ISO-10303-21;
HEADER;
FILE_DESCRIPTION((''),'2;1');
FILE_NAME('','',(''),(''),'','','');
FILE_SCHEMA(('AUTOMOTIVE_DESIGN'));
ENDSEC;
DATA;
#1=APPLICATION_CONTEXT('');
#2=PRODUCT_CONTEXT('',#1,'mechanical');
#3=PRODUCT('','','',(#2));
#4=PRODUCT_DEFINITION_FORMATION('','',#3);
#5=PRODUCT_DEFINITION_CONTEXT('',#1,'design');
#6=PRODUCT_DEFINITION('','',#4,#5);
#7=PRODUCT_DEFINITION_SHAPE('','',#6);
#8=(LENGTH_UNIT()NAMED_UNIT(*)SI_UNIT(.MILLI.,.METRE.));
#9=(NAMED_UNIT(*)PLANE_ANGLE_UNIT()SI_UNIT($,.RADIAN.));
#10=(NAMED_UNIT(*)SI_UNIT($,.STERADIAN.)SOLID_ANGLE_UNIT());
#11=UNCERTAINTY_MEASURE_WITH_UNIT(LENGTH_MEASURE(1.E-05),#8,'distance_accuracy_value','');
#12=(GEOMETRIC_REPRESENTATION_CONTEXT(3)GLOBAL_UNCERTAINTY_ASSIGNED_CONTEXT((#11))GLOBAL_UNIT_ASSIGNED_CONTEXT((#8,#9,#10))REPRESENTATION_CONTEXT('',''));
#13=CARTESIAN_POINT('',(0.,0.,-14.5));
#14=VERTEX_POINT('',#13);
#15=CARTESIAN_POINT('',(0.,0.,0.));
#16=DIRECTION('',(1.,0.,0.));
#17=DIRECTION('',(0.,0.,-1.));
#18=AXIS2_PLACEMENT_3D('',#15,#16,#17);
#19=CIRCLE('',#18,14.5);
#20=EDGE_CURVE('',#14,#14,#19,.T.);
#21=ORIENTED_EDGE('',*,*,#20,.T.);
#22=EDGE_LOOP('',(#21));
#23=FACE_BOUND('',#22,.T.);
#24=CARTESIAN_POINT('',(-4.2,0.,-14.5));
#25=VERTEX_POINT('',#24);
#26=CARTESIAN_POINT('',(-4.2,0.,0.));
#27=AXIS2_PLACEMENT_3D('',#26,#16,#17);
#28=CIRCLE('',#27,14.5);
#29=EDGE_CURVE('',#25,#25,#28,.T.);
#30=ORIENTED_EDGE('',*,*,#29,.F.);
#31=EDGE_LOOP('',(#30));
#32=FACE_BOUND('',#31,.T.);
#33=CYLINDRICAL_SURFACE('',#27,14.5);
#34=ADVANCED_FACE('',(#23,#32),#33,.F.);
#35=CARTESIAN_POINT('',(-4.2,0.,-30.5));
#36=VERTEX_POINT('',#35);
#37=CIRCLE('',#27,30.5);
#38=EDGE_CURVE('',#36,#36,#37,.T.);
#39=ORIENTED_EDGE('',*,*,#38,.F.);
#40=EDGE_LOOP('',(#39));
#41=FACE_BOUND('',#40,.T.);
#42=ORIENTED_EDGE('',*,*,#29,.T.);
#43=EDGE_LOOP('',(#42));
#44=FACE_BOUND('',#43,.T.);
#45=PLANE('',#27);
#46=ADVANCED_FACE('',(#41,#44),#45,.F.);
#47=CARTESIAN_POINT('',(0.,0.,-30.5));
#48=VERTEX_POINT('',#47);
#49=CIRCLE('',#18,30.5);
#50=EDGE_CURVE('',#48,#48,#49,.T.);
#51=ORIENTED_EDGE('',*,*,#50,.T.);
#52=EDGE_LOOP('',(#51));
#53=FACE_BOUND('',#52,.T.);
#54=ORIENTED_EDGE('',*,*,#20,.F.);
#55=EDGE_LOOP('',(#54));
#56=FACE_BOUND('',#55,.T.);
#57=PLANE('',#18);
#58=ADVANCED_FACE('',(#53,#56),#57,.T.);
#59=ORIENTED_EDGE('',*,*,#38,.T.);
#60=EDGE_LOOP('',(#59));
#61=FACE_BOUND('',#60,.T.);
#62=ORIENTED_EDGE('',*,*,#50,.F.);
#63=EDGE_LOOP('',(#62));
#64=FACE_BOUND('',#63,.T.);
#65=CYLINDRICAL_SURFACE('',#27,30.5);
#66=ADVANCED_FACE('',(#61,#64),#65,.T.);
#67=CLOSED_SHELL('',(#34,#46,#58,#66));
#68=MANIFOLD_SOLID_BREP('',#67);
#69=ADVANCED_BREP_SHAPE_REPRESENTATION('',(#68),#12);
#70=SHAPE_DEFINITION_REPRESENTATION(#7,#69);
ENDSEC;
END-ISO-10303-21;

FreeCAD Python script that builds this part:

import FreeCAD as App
import Part
import Sketcher

V = App.Vector
Q = App.Units.Quantity

doc = App.newDocument("Part")
body = doc.addObject("PartDesign::Body", "Body")

# Sketch on YZ plane
sketch1 = body.newObject("Sketcher::SketchObject", "Sketch")
sketch1.AttachmentSupport = (doc.getObject("YZ_Plane"), [""])
sketch1.MapMode = "FlatFace"
sketch1.addGeometry([
    Part.Circle(V(0, 0, 0), V(0, 0, 1), 30),
    Part.Circle(V(0, 0, 0), V(0, 0, 1), 14),
], False)
sketch1.addConstraint([
    Sketcher.Constraint("Coincident", 0, 3, -1, 1),
    Sketcher.Constraint("Coincident", 1, 3, -1, 1),
    Sketcher.Constraint("Diameter", 0, Q("61 mm")),
    Sketcher.Constraint("Diameter", 1, Q("29 mm")),
])
pad1 = body.newObject("PartDesign::Pad", "Pad")
pad1.Profile = sketch1
pad1.Length = 4.2
pad1.Reversed = True

doc.recompute()
